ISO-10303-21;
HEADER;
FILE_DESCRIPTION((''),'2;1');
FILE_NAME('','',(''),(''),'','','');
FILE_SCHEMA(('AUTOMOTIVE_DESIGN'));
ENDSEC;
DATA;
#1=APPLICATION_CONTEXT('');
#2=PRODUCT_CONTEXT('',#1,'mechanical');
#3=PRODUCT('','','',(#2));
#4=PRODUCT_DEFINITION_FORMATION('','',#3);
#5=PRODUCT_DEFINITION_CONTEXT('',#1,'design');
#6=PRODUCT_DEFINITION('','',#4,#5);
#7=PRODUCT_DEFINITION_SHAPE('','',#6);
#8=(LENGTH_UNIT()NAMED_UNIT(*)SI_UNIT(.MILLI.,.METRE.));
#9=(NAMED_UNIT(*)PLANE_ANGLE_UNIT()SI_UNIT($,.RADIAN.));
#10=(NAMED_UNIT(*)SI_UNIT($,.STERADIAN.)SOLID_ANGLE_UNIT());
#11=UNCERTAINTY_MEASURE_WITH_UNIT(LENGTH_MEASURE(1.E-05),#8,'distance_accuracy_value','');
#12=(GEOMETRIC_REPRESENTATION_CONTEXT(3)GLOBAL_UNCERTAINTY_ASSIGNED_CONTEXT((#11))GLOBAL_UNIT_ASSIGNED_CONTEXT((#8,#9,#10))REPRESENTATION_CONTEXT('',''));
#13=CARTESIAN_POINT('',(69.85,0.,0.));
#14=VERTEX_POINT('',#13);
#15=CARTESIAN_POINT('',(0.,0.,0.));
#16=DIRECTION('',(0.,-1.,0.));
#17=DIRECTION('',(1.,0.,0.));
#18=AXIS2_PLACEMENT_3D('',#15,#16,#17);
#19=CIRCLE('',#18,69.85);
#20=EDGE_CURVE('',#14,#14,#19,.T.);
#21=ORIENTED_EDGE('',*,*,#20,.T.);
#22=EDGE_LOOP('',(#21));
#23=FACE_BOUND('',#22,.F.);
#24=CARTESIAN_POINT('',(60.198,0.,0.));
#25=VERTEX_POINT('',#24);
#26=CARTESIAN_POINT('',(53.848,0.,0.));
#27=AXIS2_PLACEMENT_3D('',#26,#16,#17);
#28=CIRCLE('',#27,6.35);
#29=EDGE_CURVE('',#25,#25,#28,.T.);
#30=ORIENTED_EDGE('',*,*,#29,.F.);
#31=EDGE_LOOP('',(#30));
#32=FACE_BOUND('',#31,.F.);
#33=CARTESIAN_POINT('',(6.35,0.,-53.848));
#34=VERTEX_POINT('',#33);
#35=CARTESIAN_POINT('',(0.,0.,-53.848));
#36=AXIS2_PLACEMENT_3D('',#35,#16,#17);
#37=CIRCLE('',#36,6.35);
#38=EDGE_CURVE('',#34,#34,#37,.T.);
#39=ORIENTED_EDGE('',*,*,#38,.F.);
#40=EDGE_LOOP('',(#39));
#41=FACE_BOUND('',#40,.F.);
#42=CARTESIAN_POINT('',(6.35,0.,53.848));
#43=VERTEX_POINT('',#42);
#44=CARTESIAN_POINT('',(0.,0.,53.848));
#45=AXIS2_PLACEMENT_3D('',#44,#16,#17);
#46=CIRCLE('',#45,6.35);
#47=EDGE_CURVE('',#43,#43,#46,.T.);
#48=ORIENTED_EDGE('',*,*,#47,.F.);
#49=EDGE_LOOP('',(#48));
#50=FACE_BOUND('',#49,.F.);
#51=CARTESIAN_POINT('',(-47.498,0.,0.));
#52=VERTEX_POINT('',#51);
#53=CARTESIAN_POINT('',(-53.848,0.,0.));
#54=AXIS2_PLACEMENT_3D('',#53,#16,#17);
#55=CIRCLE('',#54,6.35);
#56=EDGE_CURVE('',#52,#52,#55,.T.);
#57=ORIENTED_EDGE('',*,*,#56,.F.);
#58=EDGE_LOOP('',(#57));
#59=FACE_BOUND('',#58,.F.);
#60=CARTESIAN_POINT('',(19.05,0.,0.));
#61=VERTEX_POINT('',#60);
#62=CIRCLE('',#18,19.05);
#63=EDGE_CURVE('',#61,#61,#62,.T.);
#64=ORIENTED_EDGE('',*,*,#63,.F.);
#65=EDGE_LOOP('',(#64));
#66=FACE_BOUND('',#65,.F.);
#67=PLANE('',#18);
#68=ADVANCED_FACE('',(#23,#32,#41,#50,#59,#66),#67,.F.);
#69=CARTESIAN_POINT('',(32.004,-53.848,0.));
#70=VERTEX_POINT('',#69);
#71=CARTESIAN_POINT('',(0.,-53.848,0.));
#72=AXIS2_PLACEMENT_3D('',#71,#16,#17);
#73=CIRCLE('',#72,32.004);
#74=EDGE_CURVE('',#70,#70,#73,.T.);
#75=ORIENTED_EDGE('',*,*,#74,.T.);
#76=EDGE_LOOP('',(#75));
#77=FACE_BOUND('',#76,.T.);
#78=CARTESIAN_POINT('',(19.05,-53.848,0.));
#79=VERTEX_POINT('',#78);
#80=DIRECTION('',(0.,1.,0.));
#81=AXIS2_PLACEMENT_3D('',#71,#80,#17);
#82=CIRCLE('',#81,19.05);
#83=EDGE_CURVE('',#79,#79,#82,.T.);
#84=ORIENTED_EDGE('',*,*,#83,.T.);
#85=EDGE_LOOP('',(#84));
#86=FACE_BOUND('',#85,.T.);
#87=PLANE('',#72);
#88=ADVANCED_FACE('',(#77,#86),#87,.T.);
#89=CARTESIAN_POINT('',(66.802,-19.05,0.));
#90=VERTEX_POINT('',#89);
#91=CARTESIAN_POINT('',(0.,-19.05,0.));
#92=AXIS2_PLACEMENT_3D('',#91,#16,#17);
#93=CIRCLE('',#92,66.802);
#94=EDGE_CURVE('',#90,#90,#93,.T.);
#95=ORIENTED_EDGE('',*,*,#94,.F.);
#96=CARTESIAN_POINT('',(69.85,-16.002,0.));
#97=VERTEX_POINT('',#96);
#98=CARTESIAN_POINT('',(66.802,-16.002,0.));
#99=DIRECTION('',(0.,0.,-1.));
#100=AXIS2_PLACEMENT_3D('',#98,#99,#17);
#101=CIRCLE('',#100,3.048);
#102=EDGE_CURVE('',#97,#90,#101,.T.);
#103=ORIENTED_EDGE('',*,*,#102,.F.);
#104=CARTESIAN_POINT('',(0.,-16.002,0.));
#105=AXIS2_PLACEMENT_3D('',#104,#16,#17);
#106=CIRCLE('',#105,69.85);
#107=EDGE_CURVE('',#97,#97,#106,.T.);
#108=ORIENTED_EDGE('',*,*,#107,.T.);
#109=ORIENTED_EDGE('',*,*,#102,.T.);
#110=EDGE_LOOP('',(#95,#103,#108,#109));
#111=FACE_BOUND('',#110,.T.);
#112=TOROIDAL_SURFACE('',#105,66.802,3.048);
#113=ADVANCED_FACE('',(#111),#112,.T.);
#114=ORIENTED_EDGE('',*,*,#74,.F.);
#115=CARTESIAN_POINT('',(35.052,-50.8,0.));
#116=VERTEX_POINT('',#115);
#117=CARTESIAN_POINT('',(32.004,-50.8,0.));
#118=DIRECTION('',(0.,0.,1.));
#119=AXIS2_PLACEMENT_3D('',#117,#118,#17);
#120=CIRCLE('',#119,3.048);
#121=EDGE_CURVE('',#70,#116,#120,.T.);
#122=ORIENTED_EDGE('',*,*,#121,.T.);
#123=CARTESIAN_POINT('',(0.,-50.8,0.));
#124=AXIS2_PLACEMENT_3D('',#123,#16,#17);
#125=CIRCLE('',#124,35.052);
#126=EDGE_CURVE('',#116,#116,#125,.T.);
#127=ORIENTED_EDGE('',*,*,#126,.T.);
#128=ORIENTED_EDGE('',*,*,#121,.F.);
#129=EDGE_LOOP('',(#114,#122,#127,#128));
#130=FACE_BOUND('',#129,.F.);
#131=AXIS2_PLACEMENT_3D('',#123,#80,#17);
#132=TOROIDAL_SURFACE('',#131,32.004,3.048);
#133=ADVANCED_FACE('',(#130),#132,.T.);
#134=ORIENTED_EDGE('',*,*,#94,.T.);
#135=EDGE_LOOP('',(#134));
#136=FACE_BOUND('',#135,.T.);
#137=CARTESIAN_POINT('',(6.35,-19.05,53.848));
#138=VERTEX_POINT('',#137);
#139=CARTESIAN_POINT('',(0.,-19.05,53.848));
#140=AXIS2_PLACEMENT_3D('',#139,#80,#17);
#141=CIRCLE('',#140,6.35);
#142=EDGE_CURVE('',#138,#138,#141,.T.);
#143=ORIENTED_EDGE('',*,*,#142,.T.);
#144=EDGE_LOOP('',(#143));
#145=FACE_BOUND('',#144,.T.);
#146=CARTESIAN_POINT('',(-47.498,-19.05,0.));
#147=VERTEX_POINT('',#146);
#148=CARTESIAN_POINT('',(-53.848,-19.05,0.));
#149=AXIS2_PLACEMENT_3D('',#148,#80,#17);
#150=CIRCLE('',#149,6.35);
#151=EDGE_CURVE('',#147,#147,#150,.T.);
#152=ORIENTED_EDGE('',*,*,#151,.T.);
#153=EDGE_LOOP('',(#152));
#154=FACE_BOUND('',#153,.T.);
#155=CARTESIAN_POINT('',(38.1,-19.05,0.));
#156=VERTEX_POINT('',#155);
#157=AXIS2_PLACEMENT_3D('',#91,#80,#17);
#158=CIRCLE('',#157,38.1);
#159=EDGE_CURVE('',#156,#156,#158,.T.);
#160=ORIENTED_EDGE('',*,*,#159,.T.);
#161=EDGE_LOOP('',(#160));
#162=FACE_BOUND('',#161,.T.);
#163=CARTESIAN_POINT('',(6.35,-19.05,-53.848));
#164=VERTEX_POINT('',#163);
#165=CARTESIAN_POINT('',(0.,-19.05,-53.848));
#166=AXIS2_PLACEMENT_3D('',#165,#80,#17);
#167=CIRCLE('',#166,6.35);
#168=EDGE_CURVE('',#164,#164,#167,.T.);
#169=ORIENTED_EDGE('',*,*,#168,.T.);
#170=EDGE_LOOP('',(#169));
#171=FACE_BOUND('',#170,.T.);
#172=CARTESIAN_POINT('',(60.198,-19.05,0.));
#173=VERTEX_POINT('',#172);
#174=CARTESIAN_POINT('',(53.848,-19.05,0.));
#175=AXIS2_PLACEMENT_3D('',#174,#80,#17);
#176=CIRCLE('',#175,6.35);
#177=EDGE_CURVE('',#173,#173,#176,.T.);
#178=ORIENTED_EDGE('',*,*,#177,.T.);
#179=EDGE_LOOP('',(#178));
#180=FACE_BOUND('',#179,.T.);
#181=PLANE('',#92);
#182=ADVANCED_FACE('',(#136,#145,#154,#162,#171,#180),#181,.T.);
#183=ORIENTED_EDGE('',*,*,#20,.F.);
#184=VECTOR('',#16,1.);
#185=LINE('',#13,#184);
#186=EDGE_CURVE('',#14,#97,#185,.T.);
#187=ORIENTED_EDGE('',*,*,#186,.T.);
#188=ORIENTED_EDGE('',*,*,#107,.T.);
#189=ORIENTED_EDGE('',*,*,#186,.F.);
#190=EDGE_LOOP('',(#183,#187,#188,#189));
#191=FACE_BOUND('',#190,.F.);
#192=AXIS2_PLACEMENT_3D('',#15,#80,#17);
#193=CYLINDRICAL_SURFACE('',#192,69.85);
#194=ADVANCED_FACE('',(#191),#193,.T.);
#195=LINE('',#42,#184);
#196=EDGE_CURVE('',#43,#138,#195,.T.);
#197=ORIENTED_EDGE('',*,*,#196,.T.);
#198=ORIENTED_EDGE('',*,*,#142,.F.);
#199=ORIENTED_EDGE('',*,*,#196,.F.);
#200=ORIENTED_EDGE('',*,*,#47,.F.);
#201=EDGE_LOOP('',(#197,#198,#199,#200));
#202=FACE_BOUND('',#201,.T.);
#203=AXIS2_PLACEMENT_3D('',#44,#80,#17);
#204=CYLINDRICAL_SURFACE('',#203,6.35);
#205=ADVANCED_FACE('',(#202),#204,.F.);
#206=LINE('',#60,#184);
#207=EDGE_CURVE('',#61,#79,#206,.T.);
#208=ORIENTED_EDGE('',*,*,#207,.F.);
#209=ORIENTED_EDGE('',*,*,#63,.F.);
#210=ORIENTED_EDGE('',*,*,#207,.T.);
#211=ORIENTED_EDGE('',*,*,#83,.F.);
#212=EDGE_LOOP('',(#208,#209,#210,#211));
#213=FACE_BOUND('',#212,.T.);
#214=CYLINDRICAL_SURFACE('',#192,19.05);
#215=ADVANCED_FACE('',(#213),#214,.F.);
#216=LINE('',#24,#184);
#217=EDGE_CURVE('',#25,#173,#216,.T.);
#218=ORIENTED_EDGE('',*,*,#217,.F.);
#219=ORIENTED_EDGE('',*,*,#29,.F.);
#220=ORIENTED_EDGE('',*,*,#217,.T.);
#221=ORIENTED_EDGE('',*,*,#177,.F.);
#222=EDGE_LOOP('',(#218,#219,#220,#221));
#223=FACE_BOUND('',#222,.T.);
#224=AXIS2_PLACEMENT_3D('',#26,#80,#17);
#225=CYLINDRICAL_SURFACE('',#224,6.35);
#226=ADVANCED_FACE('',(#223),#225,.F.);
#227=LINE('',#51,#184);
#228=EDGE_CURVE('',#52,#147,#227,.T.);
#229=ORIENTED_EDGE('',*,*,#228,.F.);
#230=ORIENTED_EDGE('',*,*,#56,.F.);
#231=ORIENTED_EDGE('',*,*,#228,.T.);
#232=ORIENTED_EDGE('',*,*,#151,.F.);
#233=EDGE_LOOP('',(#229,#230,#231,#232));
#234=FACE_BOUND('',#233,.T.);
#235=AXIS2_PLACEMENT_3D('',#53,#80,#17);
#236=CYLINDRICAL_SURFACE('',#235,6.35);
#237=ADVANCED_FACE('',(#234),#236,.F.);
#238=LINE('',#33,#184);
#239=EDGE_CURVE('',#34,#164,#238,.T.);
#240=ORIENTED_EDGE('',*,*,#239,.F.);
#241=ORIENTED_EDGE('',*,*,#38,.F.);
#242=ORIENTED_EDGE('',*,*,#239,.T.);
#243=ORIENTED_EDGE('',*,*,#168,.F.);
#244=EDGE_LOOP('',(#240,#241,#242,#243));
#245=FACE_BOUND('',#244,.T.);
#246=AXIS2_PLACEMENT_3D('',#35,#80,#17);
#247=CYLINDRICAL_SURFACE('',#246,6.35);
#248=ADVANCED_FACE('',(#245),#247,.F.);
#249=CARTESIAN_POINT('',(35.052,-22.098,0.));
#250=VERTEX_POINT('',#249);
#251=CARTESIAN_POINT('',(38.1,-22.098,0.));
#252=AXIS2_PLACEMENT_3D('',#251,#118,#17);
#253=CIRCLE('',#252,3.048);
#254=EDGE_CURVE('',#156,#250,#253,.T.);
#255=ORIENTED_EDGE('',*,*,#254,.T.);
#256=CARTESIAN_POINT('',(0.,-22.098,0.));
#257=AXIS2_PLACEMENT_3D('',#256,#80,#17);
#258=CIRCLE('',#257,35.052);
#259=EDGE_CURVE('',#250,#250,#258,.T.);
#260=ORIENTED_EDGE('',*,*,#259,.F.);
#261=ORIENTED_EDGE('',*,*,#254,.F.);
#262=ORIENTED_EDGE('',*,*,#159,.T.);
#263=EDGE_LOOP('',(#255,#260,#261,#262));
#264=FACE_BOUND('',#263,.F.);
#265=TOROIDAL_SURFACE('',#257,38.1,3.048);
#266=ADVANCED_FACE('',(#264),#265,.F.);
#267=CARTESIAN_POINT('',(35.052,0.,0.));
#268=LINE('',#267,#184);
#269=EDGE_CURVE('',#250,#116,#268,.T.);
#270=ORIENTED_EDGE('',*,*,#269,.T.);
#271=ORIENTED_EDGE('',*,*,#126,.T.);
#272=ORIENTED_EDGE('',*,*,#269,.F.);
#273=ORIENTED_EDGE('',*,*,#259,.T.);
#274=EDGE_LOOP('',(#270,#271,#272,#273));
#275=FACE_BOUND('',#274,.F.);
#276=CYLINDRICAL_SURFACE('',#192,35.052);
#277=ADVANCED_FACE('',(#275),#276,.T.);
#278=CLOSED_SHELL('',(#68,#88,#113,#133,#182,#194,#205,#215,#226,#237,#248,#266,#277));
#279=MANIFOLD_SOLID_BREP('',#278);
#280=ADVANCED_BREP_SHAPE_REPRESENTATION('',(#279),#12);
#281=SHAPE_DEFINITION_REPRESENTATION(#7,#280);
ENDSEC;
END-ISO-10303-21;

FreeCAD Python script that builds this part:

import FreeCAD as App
import Part
import Sketcher
from FreeCAD import Vector
Q = App.Units.Quantity


def edges_at(feature, points):
    """Names of the edges that pass closest to the given points."""
    edges = feature.Shape.Edges
    near = lambda p: min(range(len(edges)), key=lambda i: edges[i].distToShape(Part.Vertex(*p))[0])
    return sorted({f"Edge{near(p) + 1}" for p in points})

doc = App.newDocument("Part")
body = doc.addObject("PartDesign::Body", "Body")

# Sketch on XZ plane
sketch1 = body.newObject("Sketcher::SketchObject", "Sketch")
sketch1.AttachmentSupport = (doc.getObject("XZ_Plane"), [""])
sketch1.MapMode = "FlatFace"
sketch1.addGeometry(Part.Circle(Vector(0, 0, 0), Vector(0, 0, 1), 70), False)
sketch1.addConstraint([
    Sketcher.Constraint("Coincident", 0, 3, -1, 1),
    Sketcher.Constraint("Diameter", 0, Q("5.5 in")),
])
pad1 = body.newObject("PartDesign::Pad", "Pad")
pad1.Profile = sketch1
pad1.Length = Q("0.75 in")

# Sketch on XZ plane
sketch2 = body.newObject("Sketcher::SketchObject", "Sketch001")
sketch2.AttachmentSupport = (doc.getObject("XZ_Plane"), [""])
sketch2.MapMode = "FlatFace"
sketch2.addGeometry(Part.Circle(Vector(0, 0, 0), Vector(0, 0, 1), 35), False)
sketch2.addConstraint([
    Sketcher.Constraint("Coincident", 0, 3, -1, 1),
    Sketcher.Constraint("Diameter", 0, Q("2.76 in")),
])
pad2 = body.newObject("PartDesign::Pad", "Pad001")
pad2.Profile = sketch2
pad2.Length = Q("2.12 in")

# Sketch on XZ plane
sketch3 = body.newObject("Sketcher::SketchObject", "Sketch002")
sketch3.AttachmentSupport = (doc.getObject("XZ_Plane"), [""])
sketch3.MapMode = "FlatFace"
sketch3.addGeometry(Part.Circle(Vector(0, 0, 0), Vector(0, 0, 1), 19), False)
sketch3.addConstraint([
    Sketcher.Constraint("Coincident", 0, 3, -1, 1),
    Sketcher.Constraint("Diameter", 0, Q("1.5 in")),
])
pocket1 = body.newObject("PartDesign::Pocket", "Pocket")
pocket1.Profile = sketch3
pocket1.Type = "ThroughAll"
pocket1.Reversed = True

# Sketch on XZ plane
sketch4 = body.newObject("Sketcher::SketchObject", "Sketch003")
sketch4.AttachmentSupport = (doc.getObject("XZ_Plane"), [""])
sketch4.MapMode = "FlatFace"
sketch4.addGeometry([
    Part.Circle(Vector(54, 0, 0), Vector(0, 0, 1), 6),
    Part.Circle(Vector(0, 54, 0), Vector(0, 0, 1), 6),
    Part.Circle(Vector(-54, 0, 0), Vector(0, 0, 1), 6),
    Part.Circle(Vector(0, -54, 0), Vector(0, 0, 1), 6),
], False)
sketch4.addConstraint([
    Sketcher.Constraint("Equal", 0, 1),
    Sketcher.Constraint("Equal", 1, 2),
    Sketcher.Constraint("Equal", 2, 3),
    Sketcher.Constraint("Symmetric", 0, 3, 2, 3, -1, 1),
    Sketcher.Constraint("Symmetric", 1, 3, 3, 3, -1, 1),
    Sketcher.Constraint("PointOnObject", 0, 3, -1),
    Sketcher.Constraint("PointOnObject", 1, 3, -2),
    Sketcher.Constraint("Diameter", 0, Q("0.5 in")),
    Sketcher.Constraint("DistanceX", -1, 1, 0, 3, Q("2.12 in")),
    Sketcher.Constraint("DistanceY", -1, 1, 1, 3, Q("2.12 in")),
])
pocket2 = body.newObject("PartDesign::Pocket", "Pocket001")
pocket2.Profile = sketch4
pocket2.Type = "ThroughAll"
pocket2.Reversed = True
doc.recompute()

fillet = body.newObject("PartDesign::Fillet", "Fillet")
fillet.Base = (pocket2, edges_at(pocket2, [(-69.85, -19.05, 0), (-35.052, -19.05, 0), (-35.052, -53.848, 0)]))
fillet.Radius = Q("0.12 in")

doc.recompute()
